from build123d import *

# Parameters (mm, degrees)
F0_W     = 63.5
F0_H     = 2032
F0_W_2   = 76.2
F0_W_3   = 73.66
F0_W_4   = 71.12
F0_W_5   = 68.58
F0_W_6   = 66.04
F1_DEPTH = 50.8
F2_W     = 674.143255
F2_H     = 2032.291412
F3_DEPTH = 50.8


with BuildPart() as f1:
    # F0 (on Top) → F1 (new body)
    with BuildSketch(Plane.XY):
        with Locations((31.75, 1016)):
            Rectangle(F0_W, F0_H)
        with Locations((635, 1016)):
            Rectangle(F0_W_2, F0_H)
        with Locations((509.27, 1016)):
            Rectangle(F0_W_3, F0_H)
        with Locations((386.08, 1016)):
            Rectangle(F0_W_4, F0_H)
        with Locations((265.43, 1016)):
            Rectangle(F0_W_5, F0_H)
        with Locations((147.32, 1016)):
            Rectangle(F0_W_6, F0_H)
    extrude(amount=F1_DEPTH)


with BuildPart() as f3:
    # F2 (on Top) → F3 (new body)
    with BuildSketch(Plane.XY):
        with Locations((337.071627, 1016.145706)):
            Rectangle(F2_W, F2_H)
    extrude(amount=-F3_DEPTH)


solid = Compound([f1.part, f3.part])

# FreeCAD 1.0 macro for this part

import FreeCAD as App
import Part
import Sketcher
from FreeCAD import Vector
Q = App.Units.Quantity


def add_polygon(sketch, points):
    """Adds a closed chain of lines whose ends are joined by coincident constraints."""
    first, n = sketch.GeometryCount, len(points)
    for a, b in zip(points, points[1:] + points[:1]):
        sketch.addGeometry(Part.LineSegment(App.Vector(*a, 0), App.Vector(*b, 0)), False)
    for i in range(n):
        sketch.addConstraint(Sketcher.Constraint("Coincident", first + i, 2, first + (i + 1) % n, 1))

doc = App.newDocument("Part")
body = doc.addObject("PartDesign::Body", "Body")
body.AllowCompound = True

sketch1 = doc.addObject("Sketcher::SketchObject", "Sketch")
body.addObject(sketch1)
sketch1.AttachmentSupport = (doc.XY_Plane, [""])
sketch1.MapMode = "FlatFace"
add_polygon(sketch1, [(0, 2032), (0, 0), (64, 0), (64, 2032)])
add_polygon(sketch1, [(597, 2032), (597, 0), (673, 0), (673, 2032)])
add_polygon(sketch1, [(472, 2032), (472, 0), (546, 0), (546, 2032)])
add_polygon(sketch1, [(351, 2032), (351, 0), (422, 0), (422, 2032)])
add_polygon(sketch1, [(231, 2032), (231, 0), (300, 0), (300, 2032)])
add_polygon(sketch1, [(114, 2032), (114, 0), (180, 0), (180, 2032)])
sketch1.addConstraint([
    Sketcher.Constraint("Vertical", 0),
    Sketcher.Constraint("Horizontal", 1),
    Sketcher.Constraint("Vertical", 2),
    Sketcher.Constraint("Horizontal", 3),
    Sketcher.Constraint("Vertical", 4),
    Sketcher.Constraint("Horizontal", 5),
    Sketcher.Constraint("Vertical", 6),
    Sketcher.Constraint("Horizontal", 7),
    Sketcher.Constraint("Vertical", 8),
    Sketcher.Constraint("Horizontal", 9),
    Sketcher.Constraint("Vertical", 10),
    Sketcher.Constraint("Horizontal", 11),
    Sketcher.Constraint("Vertical", 12),
    Sketcher.Constraint("Horizontal", 13),
    Sketcher.Constraint("Vertical", 14),
    Sketcher.Constraint("Horizontal", 15),
    Sketcher.Constraint("Vertical", 16),
    Sketcher.Constraint("Horizontal", 17),
    Sketcher.Constraint("Vertical", 18),
    Sketcher.Constraint("Horizontal", 19),
    Sketcher.Constraint("Vertical", 20),
    Sketcher.Constraint("Horizontal", 21),
    Sketcher.Constraint("Vertical", 22),
    Sketcher.Constraint("Horizontal", 23),
    Sketcher.Constraint("Coincident", 0, 2, -1, 1),
    Sketcher.Constraint("PointOnObject", 4, 2, -1),
    Sketcher.Constraint("PointOnObject", 8, 2, -1),
    Sketcher.Constraint("PointOnObject", 12, 2, -1),
    Sketcher.Constraint("PointOnObject", 16, 2, -1),
    Sketcher.Constraint("PointOnObject", 20, 2, -1),
    Sketcher.Constraint("Horizontal", 3, 2, 6, 2),
    Sketcher.Constraint("Horizontal", 7, 2, 10, 2),
    Sketcher.Constraint("Horizontal", 11, 2, 14, 2),
    Sketcher.Constraint("Horizontal", 15, 2, 18, 2),
    Sketcher.Constraint("Horizontal", 19, 2, 22, 2),
    Sketcher.Constraint("DistanceX", 5, 1, 5, 2, Q("3 in")),
    Sketcher.Constraint("DistanceY", 0, 2, 0, 1, Q("80 in")),
    Sketcher.Constraint("DistanceX", 1, 1, 1, 2, Q("2.5 in")),
    Sketcher.Constraint("DistanceX", 9, 1, 9, 2, Q("2.9 in")),
    Sketcher.Constraint("DistanceX", 13, 1, 13, 2, Q("2.8 in")),
    Sketcher.Constraint("DistanceX", 17, 1, 17, 2, Q("2.7 in")),
    Sketcher.Constraint("DistanceX", 21, 1, 21, 2, Q("2.6 in")),
    Sketcher.Constraint("DistanceX", 1, 2, 4, 2, Q("21 in")),
    Sketcher.Constraint("DistanceX", 9, 2, 4, 2, Q("2 in")),
    Sketcher.Constraint("DistanceX", 13, 2, 8, 2, Q("2 in")),
    Sketcher.Constraint("DistanceX", 17, 2, 12, 2, Q("2 in")),
    Sketcher.Constraint("DistanceX", 1, 2, 20, 2, Q("2 in")),
])
pad1 = doc.addObject("PartDesign::Pad", "Pad")
body.addObject(pad1)
pad1.Profile = sketch1
pad1.Length = Q("2 in")
body2 = doc.addObject("PartDesign::Body", "Body001")

sketch2 = doc.addObject("Sketcher::SketchObject", "Sketch001")
body2.addObject(sketch2)
sketch2.AttachmentSupport = (doc.getObject("XY_Plane001"), [""])
sketch2.MapMode = "FlatFace"
add_polygon(sketch2, [(0, 2032), (0, 0), (674, 0), (674, 2032)])
sketch2.addConstraint([
    Sketcher.Constraint("Vertical", 0),
    Sketcher.Constraint("Horizontal", 1),
    Sketcher.Constraint("Vertical", 2),
    Sketcher.Constraint("Horizontal", 3),
    Sketcher.Constraint("Coincident", 0, 2, -1, 1),
    Sketcher.Constraint("DistanceY", 0, 2, 0, 1, 2032.291412),
    Sketcher.Constraint("DistanceX", 1, 1, 1, 2, 674.143255),
])
pad2 = doc.addObject("PartDesign::Pad", "Pad001")
body2.addObject(pad2)
pad2.Profile = sketch2
pad2.Length = Q("2 in")
pad2.Reversed = True

doc.recompute()
